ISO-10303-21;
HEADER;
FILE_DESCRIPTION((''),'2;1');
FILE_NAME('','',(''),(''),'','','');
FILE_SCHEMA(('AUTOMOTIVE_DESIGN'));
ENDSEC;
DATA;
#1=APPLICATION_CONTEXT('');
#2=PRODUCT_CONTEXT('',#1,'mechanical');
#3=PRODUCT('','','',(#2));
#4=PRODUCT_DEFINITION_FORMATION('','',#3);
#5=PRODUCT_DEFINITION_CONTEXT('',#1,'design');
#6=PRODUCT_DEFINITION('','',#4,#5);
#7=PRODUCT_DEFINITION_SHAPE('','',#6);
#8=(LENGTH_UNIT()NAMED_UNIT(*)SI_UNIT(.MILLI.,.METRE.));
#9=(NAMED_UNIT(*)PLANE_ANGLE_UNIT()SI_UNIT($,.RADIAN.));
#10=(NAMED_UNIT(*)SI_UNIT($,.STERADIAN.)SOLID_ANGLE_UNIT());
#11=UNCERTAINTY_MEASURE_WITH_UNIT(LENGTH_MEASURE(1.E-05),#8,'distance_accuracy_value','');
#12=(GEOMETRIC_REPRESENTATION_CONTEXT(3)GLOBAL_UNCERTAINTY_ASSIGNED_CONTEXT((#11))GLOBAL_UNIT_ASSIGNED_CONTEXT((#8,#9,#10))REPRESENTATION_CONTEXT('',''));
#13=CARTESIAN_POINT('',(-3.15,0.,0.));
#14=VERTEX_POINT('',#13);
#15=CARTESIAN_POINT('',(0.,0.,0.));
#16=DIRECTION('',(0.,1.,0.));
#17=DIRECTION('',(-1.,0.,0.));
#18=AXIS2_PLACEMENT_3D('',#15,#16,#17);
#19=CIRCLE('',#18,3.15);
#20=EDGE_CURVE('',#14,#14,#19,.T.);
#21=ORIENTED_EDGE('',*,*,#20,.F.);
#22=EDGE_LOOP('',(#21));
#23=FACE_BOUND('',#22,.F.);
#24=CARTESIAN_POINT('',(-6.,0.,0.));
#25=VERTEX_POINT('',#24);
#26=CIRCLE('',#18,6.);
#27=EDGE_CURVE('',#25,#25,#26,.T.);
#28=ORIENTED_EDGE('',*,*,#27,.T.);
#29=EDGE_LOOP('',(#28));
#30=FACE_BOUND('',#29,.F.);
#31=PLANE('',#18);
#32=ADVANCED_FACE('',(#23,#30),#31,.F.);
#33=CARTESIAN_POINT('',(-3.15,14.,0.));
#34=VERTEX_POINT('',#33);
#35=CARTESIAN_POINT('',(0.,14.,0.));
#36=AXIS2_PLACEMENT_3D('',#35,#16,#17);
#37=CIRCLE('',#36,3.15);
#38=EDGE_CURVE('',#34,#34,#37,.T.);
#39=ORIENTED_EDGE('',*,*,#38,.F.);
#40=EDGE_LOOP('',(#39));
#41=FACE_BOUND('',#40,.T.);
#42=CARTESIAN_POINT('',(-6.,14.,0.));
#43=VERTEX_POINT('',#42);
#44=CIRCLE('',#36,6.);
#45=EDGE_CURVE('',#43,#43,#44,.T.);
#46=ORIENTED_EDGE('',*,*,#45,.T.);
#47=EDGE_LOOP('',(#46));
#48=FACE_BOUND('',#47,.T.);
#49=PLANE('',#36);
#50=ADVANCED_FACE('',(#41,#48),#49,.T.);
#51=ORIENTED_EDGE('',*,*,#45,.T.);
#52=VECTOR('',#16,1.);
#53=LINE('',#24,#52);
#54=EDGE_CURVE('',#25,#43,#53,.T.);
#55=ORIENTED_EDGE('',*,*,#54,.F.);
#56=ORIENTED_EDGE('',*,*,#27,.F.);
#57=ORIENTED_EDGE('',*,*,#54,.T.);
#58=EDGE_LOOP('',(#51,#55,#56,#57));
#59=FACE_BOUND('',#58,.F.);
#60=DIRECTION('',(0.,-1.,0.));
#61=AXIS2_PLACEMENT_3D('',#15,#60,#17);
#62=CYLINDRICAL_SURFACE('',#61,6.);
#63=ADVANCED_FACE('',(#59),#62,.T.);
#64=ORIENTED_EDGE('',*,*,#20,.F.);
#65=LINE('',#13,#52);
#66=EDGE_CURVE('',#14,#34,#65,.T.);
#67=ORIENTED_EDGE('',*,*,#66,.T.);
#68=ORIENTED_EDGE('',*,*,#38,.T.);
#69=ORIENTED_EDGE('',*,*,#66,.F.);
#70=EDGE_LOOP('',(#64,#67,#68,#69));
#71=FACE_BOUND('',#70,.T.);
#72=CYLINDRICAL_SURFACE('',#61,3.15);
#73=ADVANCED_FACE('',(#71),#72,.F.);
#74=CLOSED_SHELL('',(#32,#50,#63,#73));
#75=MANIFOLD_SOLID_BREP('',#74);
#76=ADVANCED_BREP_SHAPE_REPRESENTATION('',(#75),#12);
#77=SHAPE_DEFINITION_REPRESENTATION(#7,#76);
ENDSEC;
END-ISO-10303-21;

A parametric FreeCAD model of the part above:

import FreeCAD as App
import Part
import Sketcher

doc = App.newDocument("Part")
body = doc.addObject("PartDesign::Body", "Body")

# Sketch on XZ plane
sketch1 = doc.addObject("Sketcher::SketchObject", "Sketch")
body.addObject(sketch1)
sketch1.AttachmentSupport = (doc.XZ_Plane, [""])
sketch1.MapMode = "FlatFace"
sketch1.addGeometry([
    Part.Circle(App.Vector(0, 0, 0), App.Vector(0, 0, 1), 6),
    Part.Circle(App.Vector(0, 0, 0), App.Vector(0, 0, 1), 3.1),
], False)
sketch1.addConstraint([
    Sketcher.Constraint("Coincident", 0, 3, -1, 1),
    Sketcher.Constraint("Coincident", 1, 3, -1, 1),
    Sketcher.Constraint("Diameter", 0, 12.0),
    Sketcher.Constraint("Diameter", 1, 6.3),
])
pad1 = doc.addObject("PartDesign::Pad", "Pad")
body.addObject(pad1)
pad1.Profile = sketch1
pad1.Length = 14
pad1.Reversed = True

doc.recompute()
